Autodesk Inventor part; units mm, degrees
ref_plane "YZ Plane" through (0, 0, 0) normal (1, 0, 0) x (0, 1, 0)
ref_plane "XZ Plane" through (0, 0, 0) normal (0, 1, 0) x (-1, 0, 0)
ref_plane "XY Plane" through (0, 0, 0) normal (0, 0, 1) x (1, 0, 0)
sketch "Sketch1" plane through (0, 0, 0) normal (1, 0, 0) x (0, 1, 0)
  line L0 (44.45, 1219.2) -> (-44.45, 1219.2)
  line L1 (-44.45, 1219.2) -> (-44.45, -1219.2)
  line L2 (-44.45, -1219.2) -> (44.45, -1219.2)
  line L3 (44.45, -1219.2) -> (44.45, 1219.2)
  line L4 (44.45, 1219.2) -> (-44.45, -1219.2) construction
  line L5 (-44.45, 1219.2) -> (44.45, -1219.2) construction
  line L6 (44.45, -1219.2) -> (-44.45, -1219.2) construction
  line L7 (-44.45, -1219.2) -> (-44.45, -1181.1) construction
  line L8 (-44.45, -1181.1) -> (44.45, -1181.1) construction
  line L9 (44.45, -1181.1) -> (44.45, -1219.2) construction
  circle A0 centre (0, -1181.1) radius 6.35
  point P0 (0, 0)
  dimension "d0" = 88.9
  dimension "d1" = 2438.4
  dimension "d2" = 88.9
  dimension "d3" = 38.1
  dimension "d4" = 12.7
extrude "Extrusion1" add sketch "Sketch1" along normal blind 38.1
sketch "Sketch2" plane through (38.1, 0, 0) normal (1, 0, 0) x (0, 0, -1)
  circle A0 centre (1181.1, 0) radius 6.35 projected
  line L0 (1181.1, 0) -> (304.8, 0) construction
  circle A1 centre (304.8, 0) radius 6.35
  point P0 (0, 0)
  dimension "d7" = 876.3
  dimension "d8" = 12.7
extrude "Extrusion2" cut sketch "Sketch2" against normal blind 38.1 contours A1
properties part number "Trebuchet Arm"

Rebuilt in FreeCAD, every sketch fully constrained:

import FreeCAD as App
import Part
import Sketcher

V = App.Vector
Q = App.Units.Quantity


def add_polygon(sketch, points):
    """Adds a closed chain of lines whose ends are joined by coincident constraints."""
    first, n = sketch.GeometryCount, len(points)
    for a, b in zip(points, points[1:] + points[:1]):
        sketch.addGeometry(Part.LineSegment(App.Vector(*a, 0), App.Vector(*b, 0)), False)
    for i in range(n):
        sketch.addConstraint(Sketcher.Constraint("Coincident", first + i, 2, first + (i + 1) % n, 1))

doc = App.newDocument("Part")
body = doc.addObject("PartDesign::Body", "Body")

sketch1 = doc.addObject("Sketcher::SketchObject", "Sketch")
body.addObject(sketch1)
sketch1.AttachmentSupport = (doc.YZ_Plane, [""])
sketch1.MapMode = "FlatFace"
add_polygon(sketch1, [(44, -1219), (44, 1219), (-44, 1219), (-44, -1219)])
sketch1.addGeometry(Part.Circle(V(0, -1181, 0), V(0, 0, 1), 6), False)
sketch1.addConstraint([
    Sketcher.Constraint("Vertical", 0),
    Sketcher.Constraint("Horizontal", 1),
    Sketcher.Constraint("Vertical", 2),
    Sketcher.Constraint("Horizontal", 3),
    Sketcher.Constraint("Symmetric", 0, 2, 2, 2, -1, 1),
    Sketcher.Constraint("PointOnObject", 4, 3, -2),
    Sketcher.Constraint("Diameter", 4, Q("0.5 in")),
    Sketcher.Constraint("DistanceY", 0, 1, 0, 2, Q("96 in")),
    Sketcher.Constraint("DistanceX", 1, 2, 1, 1, Q("3.5 in")),
    Sketcher.Constraint("DistanceY", 2, 2, 4, 3, Q("1.5 in")),
])
pad1 = doc.addObject("PartDesign::Pad", "Pad")
body.addObject(pad1)
pad1.Profile = sketch1
pad1.Length = Q("1.5 in")

sketch2 = doc.addObject("Sketcher::SketchObject", "Sketch001")
body.addObject(sketch2)
sketch2.AttachmentSupport = (doc.YZ_Plane, [""])
sketch2.MapMode = "FlatFace"
sketch2.AttachmentOffset = App.Placement(V(0, 0, 1.5 * 25.4), App.Rotation())
sketch2.addGeometry(Part.Circle(V(0, -305, 0), V(0, 0, 1), 6), False)
sketch2.addConstraint([
    Sketcher.Constraint("PointOnObject", 0, 3, -2),
    Sketcher.Constraint("Diameter", 0, Q("0.5 in")),
    Sketcher.Constraint("DistanceY", 0, 3, -1, 1, Q("12 in")),
])
pocket1 = doc.addObject("PartDesign::Pocket", "Pocket")
body.addObject(pocket1)
pocket1.Profile = sketch2
pocket1.Length = Q("1.5 in")

doc.recompute()
